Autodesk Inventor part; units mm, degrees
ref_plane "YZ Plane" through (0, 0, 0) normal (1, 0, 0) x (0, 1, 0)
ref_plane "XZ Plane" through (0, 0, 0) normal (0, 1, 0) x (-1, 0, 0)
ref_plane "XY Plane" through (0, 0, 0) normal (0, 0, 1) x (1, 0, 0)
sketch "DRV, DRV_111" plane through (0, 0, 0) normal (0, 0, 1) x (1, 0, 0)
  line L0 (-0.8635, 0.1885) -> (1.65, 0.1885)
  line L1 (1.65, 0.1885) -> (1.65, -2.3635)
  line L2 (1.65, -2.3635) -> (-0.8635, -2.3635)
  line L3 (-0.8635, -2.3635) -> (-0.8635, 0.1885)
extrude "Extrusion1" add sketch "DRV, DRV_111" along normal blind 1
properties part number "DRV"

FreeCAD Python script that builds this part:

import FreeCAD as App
import Part
import Sketcher
Q = App.Units.Quantity

doc = App.newDocument("Part")
body = doc.addObject("PartDesign::Body", "Body")

# Sketch on XY plane
sketch1 = doc.addObject("Sketcher::SketchObject", "Sketch")
body.addObject(sketch1)
sketch1.AttachmentSupport = (doc.XY_Plane, [""])
sketch1.MapMode = "FlatFace"
sketch1.addGeometry([
    Part.LineSegment(App.Vector(1.6, 0.2, 0), App.Vector(-0.9, 0.2, 0)),
    Part.LineSegment(App.Vector(-0.9, 0.2, 0), App.Vector(-0.9, -2.4, 0)),
    Part.LineSegment(App.Vector(-0.9, -2.4, 0), App.Vector(1.6, -2.4, 0)),
    Part.LineSegment(App.Vector(1.6, -2.4, 0), App.Vector(1.6, 0.2, 0)),
], False)
sketch1.addConstraint([
    Sketcher.Constraint("Coincident", 0, 2, 1, 1),
    Sketcher.Constraint("Coincident", 1, 2, 2, 1),
    Sketcher.Constraint("Coincident", 2, 2, 3, 1),
    Sketcher.Constraint("Coincident", 3, 2, 0, 1),
    Sketcher.Constraint("Horizontal", 0),
    Sketcher.Constraint("Vertical", 1),
    Sketcher.Constraint("Horizontal", 2),
    Sketcher.Constraint("Vertical", 3),
    Sketcher.Constraint("DistanceY", 1, 2, 1, 1, Q("2.552 mm")),
    Sketcher.Constraint("DistanceX", -1, 1, 2, 2, Q("1.65 mm")),
    Sketcher.Constraint("DistanceX", 0, 2, 0, 1, Q("2.5135 mm")),
    Sketcher.Constraint("DistanceY", -1, 1, 0, 2, Q("0.1885 mm")),
])
pad1 = doc.addObject("PartDesign::Pad", "Pad")
body.addObject(pad1)
pad1.Profile = sketch1
pad1.Length = 1

doc.recompute()
